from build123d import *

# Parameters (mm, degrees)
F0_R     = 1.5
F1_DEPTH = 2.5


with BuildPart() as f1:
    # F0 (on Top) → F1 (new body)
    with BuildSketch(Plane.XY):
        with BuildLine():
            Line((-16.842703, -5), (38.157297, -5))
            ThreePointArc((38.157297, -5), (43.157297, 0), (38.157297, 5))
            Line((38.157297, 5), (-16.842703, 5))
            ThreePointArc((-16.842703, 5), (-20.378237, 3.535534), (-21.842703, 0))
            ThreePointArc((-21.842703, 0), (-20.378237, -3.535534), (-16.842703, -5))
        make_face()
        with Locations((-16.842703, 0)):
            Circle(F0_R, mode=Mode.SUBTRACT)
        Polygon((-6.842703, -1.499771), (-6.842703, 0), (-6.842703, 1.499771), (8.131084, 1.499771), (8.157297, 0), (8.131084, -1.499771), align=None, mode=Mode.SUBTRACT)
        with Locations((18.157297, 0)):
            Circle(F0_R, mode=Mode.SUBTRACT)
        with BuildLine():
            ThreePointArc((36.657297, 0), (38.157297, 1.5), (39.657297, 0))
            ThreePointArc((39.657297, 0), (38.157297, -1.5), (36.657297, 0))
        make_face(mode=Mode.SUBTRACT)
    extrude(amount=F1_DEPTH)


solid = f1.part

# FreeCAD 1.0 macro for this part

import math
import FreeCAD as App
import Part
import Sketcher

doc = App.newDocument("Part")
body = doc.addObject("PartDesign::Body", "Body")

# Sketch on XY plane
sketch1 = body.newObject("Sketcher::SketchObject", "Sketch")
sketch1.AttachmentSupport = (doc.getObject("XY_Plane"), [""])
sketch1.MapMode = "FlatFace"
sketch1.addGeometry([
    Part.LineSegment(App.Vector(-16.8, -5, 0), App.Vector(38.2, -5, 0)),  # 0
    Part.ArcOfCircle(Part.Circle(App.Vector(38.2, 0, 0), App.Vector(0, 0, 1), 5), math.radians(-90), math.radians(90)),  # 1
    Part.LineSegment(App.Vector(38.2, 5, 0), App.Vector(-16.8, 5, 0)),  # 2
    Part.ArcOfCircle(Part.Circle(App.Vector(-16.8, 0, 0), App.Vector(0, 0, 1), 5), math.radians(90), math.radians(180)),  # 3
    Part.ArcOfCircle(Part.Circle(App.Vector(-16.8, 0, 0), App.Vector(0, 0, 1), 5), math.radians(180), math.radians(270)),  # 4
    Part.Circle(App.Vector(-16.8, 0, 0), App.Vector(0, 0, 1), 1.5),  # 5
    Part.LineSegment(App.Vector(8.1, -1.5, 0), App.Vector(-6.8, -1.5, 0)),  # 6
    Part.LineSegment(App.Vector(-6.8, -1.5, 0), App.Vector(-6.8, 1.5, 0)),  # 7
    Part.LineSegment(App.Vector(-6.8, 1.5, 0), App.Vector(8.1, 1.5, 0)),  # 8
    Part.LineSegment(App.Vector(8.1, 1.5, 0), App.Vector(8.2, 0, 0)),  # 9
    Part.LineSegment(App.Vector(8.2, 0, 0), App.Vector(8.1, -1.5, 0)),  # 10
    Part.Circle(App.Vector(18.2, 0, 0), App.Vector(0, 0, 1), 1.5),  # 11
    Part.Circle(App.Vector(38.2, 0, 0), App.Vector(0, 0, 1), 1.5),  # 12
], False)
sketch1.addConstraint([
    Sketcher.Constraint("Tangent", 0, 2, 1, 1),
    Sketcher.Constraint("Tangent", 1, 2, 2, 1),
    Sketcher.Constraint("Tangent", 2, 2, 3, 1),
    Sketcher.Constraint("Tangent", 3, 2, 4, 1),
    Sketcher.Constraint("Tangent", 4, 2, 0, 1),
    Sketcher.Constraint("Coincident", 6, 2, 7, 1),
    Sketcher.Constraint("Coincident", 7, 2, 8, 1),
    Sketcher.Constraint("Coincident", 8, 2, 9, 1),
    Sketcher.Constraint("Coincident", 9, 2, 10, 1),
    Sketcher.Constraint("Coincident", 10, 2, 6, 1),
    Sketcher.Constraint("Horizontal", 0),
    Sketcher.Constraint("Horizontal", 2),
    Sketcher.Constraint("Horizontal", 6),
    Sketcher.Constraint("Vertical", 7),
    Sketcher.Constraint("Horizontal", 8),
    Sketcher.Constraint("Coincident", 5, 3, 3, 3),
    Sketcher.Constraint("Coincident", 12, 3, 1, 3),
    Sketcher.Constraint("Equal", 1, 3),
    Sketcher.Constraint("Equal", 5, 11),
    Sketcher.Constraint("Equal", 11, 12),
    Sketcher.Constraint("Symmetric", 8, 2, 10, 2, -1),
    Sketcher.Constraint("PointOnObject", 1, 3, -1),
    Sketcher.Constraint("PointOnObject", 11, 3, -1),
    Sketcher.Constraint("PointOnObject", 3, 2, -1),
    Sketcher.Constraint("PointOnObject", 9, 2, -1),
    Sketcher.Constraint("Diameter", 5, 3.0),
    Sketcher.Constraint("Radius", 1, 5.0),
    Sketcher.Constraint("DistanceX", 0, 1, 0, 2, 55.0),
    Sketcher.Constraint("DistanceX", 11, 3, 1, 3, 20.0),
    Sketcher.Constraint("DistanceX", 5, 3, 6, 2, 10.0),
    Sketcher.Constraint("DistanceX", 9, 2, 11, 3, 10.0),
    Sketcher.Constraint("Distance", 9, 1.5),
    Sketcher.Constraint("DistanceY", 7, 1, 7, 2, 2.999542),
    Sketcher.Constraint("DistanceX", -1, 1, 1, 3, 38.157297),
])
pad1 = body.newObject("PartDesign::Pad", "Pad")
pad1.Profile = sketch1
pad1.Length = 2.5

doc.recompute()
